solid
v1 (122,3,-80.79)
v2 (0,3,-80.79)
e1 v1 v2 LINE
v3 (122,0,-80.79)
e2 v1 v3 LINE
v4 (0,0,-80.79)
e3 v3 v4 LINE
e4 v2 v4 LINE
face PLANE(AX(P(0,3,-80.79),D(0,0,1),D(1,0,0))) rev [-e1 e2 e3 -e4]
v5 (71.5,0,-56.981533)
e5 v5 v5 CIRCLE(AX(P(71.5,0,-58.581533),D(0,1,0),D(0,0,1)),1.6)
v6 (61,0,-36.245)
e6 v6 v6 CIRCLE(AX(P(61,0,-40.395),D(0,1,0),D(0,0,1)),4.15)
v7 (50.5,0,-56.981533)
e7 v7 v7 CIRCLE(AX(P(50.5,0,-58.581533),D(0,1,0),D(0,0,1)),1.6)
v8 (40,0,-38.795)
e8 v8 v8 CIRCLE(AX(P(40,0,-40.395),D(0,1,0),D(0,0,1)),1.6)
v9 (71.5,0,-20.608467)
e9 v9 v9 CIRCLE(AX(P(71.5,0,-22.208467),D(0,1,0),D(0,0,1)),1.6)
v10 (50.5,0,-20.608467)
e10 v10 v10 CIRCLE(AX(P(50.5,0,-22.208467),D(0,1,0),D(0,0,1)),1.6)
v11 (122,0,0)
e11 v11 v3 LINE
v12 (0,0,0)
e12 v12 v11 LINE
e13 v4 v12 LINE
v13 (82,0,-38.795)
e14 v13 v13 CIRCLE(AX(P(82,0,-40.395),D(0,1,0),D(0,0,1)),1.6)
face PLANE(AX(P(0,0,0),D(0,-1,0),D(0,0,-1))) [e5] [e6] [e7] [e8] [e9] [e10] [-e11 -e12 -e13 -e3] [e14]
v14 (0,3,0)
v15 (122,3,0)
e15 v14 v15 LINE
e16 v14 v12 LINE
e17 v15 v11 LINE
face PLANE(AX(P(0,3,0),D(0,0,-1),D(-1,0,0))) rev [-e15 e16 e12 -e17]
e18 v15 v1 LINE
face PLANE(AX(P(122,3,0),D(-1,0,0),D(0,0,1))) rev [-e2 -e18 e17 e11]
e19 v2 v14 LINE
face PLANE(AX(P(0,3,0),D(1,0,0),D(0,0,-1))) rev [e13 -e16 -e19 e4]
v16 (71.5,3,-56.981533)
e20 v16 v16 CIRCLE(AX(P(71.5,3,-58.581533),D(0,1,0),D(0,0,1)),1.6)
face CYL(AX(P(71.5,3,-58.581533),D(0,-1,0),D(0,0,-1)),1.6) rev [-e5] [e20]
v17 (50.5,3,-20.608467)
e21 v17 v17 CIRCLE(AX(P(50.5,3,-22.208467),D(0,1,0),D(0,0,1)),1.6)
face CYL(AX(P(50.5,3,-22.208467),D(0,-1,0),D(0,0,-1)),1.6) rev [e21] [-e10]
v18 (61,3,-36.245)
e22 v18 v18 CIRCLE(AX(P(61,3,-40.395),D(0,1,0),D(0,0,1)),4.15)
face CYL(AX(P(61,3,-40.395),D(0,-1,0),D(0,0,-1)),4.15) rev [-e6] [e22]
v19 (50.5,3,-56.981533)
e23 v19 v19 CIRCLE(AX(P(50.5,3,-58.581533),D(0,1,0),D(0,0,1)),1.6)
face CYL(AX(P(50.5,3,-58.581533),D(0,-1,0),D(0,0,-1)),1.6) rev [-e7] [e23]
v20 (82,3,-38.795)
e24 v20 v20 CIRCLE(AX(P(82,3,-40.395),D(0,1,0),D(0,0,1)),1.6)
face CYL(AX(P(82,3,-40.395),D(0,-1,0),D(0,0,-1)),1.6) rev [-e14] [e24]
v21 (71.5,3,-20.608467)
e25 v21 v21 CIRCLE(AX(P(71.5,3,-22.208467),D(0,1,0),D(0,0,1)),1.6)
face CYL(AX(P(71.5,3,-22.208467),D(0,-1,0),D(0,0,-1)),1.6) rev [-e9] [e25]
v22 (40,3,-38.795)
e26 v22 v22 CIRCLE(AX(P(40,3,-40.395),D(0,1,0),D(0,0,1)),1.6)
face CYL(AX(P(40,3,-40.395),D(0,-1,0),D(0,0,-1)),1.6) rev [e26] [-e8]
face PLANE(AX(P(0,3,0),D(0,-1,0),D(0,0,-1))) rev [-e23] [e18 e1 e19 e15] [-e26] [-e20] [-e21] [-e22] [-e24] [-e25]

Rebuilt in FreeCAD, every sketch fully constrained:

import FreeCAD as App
import Part
import Sketcher
from FreeCAD import Vector

doc = App.newDocument("Part")
params = doc.addObject("Spreadsheet::Sheet", "Params")
for row, (alias, value) in enumerate([
    ("sketch1_diameter", "3.2 mm"),
    ("sketch1_diameter2", "8.3 mm"),
    ("sketch1_width", "122 mm"),
    ("sketch1_height", "80.79 mm"),
    ("pad1_length", "3 mm"),
], start=1):
    params.set(f"A{row}", alias)
    params.set(f"B{row}", "=" + value)
    params.setAlias(f"B{row}", alias)

body = doc.addObject("PartDesign::Body", "Body")

sketch1 = body.newObject("Sketcher::SketchObject", "Sketch")
sketch1.AttachmentSupport = (doc.getObject("XZ_Plane"), [""])
sketch1.MapMode = "FlatFace"
sketch1.addGeometry([
    Part.LineSegment(Vector(0, -80.8, 0), Vector(0, 0, 0)),
    Part.LineSegment(Vector(0, 0, 0), Vector(122, 0, 0)),
    Part.LineSegment(Vector(122, 0, 0), Vector(122, -80.8, 0)),
    Part.LineSegment(Vector(122, -80.8, 0), Vector(0, -80.8, 0)),
    Part.Circle(Vector(50.5, -22.2, 0), Vector(0, 0, 1), 1.6),
    Part.Circle(Vector(71.5, -22.2, 0), Vector(0, 0, 1), 1.6),
    Part.Circle(Vector(40, -40.4, 0), Vector(0, 0, 1), 1.6),
    Part.Circle(Vector(50.5, -58.6, 0), Vector(0, 0, 1), 1.6),
    Part.Circle(Vector(61, -40.4, 0), Vector(0, 0, 1), 4.2),
    Part.Circle(Vector(82, -40.4, 0), Vector(0, 0, 1), 1.6),
    Part.Circle(Vector(71.5, -58.6, 0), Vector(0, 0, 1), 1.6),
], False)
sketch1.addConstraint([
    Sketcher.Constraint("Coincident", 0, 2, 1, 1),
    Sketcher.Constraint("Coincident", 1, 2, 2, 1),
    Sketcher.Constraint("Coincident", 2, 2, 3, 1),
    Sketcher.Constraint("Coincident", 3, 2, 0, 1),
    Sketcher.Constraint("Vertical", 0),
    Sketcher.Constraint("Horizontal", 1),
    Sketcher.Constraint("Vertical", 2),
    Sketcher.Constraint("Horizontal", 3),
    Sketcher.Constraint("Coincident", 0, 2, -1, 1),
    Sketcher.Constraint("Equal", 4, 5),
    Sketcher.Constraint("Equal", 5, 6),
    Sketcher.Constraint("Equal", 6, 7),
    Sketcher.Constraint("Equal", 7, 9),
    Sketcher.Constraint("Equal", 9, 10),
    Sketcher.Constraint("Horizontal", 4, 3, 5, 3),
    Sketcher.Constraint("Horizontal", 6, 3, 8, 3),
    Sketcher.Constraint("Horizontal", 8, 3, 9, 3),
    Sketcher.Constraint("Horizontal", 7, 3, 10, 3),
    Sketcher.Constraint("Vertical", 4, 3, 7, 3),
    Sketcher.Constraint("Vertical", 5, 3, 10, 3),
    Sketcher.Constraint("Diameter", 4, 3.2),
    Sketcher.Constraint("Diameter", 8, 8.3),
    Sketcher.Constraint("DistanceX", 1, 1, 1, 2, 122.0),
    Sketcher.Constraint("DistanceX", -1, 1, 6, 3, 40.0),
    Sketcher.Constraint("DistanceX", -1, 1, 8, 3, 61.0),
    Sketcher.Constraint("DistanceX", -1, 1, 9, 3, 82.0),
    Sketcher.Constraint("DistanceX", 4, 3, 5, 3, 21.0),
    Sketcher.Constraint("DistanceY", 0, 1, 0, 2, 80.79),
    Sketcher.Constraint("DistanceX", -1, 1, 4, 3, 50.5),
    Sketcher.Constraint("DistanceY", 6, 3, -1, 1, 40.395),
    Sketcher.Constraint("DistanceY", 4, 3, -1, 1, 22.208467),
    Sketcher.Constraint("DistanceY", 7, 3, -1, 1, 58.581533),
])
sketch1.setExpression("Constraints[20]", "Params.sketch1_diameter")
sketch1.setExpression("Constraints[21]", "Params.sketch1_diameter2")
sketch1.setExpression("Constraints[22]", "Params.sketch1_width")
sketch1.setExpression("Constraints[27]", "Params.sketch1_height")
pad1 = body.newObject("PartDesign::Pad", "Pad")
pad1.Profile = sketch1
pad1.setExpression("Length", "Params.pad1_length")
pad1.Reversed = True

doc.recompute()
